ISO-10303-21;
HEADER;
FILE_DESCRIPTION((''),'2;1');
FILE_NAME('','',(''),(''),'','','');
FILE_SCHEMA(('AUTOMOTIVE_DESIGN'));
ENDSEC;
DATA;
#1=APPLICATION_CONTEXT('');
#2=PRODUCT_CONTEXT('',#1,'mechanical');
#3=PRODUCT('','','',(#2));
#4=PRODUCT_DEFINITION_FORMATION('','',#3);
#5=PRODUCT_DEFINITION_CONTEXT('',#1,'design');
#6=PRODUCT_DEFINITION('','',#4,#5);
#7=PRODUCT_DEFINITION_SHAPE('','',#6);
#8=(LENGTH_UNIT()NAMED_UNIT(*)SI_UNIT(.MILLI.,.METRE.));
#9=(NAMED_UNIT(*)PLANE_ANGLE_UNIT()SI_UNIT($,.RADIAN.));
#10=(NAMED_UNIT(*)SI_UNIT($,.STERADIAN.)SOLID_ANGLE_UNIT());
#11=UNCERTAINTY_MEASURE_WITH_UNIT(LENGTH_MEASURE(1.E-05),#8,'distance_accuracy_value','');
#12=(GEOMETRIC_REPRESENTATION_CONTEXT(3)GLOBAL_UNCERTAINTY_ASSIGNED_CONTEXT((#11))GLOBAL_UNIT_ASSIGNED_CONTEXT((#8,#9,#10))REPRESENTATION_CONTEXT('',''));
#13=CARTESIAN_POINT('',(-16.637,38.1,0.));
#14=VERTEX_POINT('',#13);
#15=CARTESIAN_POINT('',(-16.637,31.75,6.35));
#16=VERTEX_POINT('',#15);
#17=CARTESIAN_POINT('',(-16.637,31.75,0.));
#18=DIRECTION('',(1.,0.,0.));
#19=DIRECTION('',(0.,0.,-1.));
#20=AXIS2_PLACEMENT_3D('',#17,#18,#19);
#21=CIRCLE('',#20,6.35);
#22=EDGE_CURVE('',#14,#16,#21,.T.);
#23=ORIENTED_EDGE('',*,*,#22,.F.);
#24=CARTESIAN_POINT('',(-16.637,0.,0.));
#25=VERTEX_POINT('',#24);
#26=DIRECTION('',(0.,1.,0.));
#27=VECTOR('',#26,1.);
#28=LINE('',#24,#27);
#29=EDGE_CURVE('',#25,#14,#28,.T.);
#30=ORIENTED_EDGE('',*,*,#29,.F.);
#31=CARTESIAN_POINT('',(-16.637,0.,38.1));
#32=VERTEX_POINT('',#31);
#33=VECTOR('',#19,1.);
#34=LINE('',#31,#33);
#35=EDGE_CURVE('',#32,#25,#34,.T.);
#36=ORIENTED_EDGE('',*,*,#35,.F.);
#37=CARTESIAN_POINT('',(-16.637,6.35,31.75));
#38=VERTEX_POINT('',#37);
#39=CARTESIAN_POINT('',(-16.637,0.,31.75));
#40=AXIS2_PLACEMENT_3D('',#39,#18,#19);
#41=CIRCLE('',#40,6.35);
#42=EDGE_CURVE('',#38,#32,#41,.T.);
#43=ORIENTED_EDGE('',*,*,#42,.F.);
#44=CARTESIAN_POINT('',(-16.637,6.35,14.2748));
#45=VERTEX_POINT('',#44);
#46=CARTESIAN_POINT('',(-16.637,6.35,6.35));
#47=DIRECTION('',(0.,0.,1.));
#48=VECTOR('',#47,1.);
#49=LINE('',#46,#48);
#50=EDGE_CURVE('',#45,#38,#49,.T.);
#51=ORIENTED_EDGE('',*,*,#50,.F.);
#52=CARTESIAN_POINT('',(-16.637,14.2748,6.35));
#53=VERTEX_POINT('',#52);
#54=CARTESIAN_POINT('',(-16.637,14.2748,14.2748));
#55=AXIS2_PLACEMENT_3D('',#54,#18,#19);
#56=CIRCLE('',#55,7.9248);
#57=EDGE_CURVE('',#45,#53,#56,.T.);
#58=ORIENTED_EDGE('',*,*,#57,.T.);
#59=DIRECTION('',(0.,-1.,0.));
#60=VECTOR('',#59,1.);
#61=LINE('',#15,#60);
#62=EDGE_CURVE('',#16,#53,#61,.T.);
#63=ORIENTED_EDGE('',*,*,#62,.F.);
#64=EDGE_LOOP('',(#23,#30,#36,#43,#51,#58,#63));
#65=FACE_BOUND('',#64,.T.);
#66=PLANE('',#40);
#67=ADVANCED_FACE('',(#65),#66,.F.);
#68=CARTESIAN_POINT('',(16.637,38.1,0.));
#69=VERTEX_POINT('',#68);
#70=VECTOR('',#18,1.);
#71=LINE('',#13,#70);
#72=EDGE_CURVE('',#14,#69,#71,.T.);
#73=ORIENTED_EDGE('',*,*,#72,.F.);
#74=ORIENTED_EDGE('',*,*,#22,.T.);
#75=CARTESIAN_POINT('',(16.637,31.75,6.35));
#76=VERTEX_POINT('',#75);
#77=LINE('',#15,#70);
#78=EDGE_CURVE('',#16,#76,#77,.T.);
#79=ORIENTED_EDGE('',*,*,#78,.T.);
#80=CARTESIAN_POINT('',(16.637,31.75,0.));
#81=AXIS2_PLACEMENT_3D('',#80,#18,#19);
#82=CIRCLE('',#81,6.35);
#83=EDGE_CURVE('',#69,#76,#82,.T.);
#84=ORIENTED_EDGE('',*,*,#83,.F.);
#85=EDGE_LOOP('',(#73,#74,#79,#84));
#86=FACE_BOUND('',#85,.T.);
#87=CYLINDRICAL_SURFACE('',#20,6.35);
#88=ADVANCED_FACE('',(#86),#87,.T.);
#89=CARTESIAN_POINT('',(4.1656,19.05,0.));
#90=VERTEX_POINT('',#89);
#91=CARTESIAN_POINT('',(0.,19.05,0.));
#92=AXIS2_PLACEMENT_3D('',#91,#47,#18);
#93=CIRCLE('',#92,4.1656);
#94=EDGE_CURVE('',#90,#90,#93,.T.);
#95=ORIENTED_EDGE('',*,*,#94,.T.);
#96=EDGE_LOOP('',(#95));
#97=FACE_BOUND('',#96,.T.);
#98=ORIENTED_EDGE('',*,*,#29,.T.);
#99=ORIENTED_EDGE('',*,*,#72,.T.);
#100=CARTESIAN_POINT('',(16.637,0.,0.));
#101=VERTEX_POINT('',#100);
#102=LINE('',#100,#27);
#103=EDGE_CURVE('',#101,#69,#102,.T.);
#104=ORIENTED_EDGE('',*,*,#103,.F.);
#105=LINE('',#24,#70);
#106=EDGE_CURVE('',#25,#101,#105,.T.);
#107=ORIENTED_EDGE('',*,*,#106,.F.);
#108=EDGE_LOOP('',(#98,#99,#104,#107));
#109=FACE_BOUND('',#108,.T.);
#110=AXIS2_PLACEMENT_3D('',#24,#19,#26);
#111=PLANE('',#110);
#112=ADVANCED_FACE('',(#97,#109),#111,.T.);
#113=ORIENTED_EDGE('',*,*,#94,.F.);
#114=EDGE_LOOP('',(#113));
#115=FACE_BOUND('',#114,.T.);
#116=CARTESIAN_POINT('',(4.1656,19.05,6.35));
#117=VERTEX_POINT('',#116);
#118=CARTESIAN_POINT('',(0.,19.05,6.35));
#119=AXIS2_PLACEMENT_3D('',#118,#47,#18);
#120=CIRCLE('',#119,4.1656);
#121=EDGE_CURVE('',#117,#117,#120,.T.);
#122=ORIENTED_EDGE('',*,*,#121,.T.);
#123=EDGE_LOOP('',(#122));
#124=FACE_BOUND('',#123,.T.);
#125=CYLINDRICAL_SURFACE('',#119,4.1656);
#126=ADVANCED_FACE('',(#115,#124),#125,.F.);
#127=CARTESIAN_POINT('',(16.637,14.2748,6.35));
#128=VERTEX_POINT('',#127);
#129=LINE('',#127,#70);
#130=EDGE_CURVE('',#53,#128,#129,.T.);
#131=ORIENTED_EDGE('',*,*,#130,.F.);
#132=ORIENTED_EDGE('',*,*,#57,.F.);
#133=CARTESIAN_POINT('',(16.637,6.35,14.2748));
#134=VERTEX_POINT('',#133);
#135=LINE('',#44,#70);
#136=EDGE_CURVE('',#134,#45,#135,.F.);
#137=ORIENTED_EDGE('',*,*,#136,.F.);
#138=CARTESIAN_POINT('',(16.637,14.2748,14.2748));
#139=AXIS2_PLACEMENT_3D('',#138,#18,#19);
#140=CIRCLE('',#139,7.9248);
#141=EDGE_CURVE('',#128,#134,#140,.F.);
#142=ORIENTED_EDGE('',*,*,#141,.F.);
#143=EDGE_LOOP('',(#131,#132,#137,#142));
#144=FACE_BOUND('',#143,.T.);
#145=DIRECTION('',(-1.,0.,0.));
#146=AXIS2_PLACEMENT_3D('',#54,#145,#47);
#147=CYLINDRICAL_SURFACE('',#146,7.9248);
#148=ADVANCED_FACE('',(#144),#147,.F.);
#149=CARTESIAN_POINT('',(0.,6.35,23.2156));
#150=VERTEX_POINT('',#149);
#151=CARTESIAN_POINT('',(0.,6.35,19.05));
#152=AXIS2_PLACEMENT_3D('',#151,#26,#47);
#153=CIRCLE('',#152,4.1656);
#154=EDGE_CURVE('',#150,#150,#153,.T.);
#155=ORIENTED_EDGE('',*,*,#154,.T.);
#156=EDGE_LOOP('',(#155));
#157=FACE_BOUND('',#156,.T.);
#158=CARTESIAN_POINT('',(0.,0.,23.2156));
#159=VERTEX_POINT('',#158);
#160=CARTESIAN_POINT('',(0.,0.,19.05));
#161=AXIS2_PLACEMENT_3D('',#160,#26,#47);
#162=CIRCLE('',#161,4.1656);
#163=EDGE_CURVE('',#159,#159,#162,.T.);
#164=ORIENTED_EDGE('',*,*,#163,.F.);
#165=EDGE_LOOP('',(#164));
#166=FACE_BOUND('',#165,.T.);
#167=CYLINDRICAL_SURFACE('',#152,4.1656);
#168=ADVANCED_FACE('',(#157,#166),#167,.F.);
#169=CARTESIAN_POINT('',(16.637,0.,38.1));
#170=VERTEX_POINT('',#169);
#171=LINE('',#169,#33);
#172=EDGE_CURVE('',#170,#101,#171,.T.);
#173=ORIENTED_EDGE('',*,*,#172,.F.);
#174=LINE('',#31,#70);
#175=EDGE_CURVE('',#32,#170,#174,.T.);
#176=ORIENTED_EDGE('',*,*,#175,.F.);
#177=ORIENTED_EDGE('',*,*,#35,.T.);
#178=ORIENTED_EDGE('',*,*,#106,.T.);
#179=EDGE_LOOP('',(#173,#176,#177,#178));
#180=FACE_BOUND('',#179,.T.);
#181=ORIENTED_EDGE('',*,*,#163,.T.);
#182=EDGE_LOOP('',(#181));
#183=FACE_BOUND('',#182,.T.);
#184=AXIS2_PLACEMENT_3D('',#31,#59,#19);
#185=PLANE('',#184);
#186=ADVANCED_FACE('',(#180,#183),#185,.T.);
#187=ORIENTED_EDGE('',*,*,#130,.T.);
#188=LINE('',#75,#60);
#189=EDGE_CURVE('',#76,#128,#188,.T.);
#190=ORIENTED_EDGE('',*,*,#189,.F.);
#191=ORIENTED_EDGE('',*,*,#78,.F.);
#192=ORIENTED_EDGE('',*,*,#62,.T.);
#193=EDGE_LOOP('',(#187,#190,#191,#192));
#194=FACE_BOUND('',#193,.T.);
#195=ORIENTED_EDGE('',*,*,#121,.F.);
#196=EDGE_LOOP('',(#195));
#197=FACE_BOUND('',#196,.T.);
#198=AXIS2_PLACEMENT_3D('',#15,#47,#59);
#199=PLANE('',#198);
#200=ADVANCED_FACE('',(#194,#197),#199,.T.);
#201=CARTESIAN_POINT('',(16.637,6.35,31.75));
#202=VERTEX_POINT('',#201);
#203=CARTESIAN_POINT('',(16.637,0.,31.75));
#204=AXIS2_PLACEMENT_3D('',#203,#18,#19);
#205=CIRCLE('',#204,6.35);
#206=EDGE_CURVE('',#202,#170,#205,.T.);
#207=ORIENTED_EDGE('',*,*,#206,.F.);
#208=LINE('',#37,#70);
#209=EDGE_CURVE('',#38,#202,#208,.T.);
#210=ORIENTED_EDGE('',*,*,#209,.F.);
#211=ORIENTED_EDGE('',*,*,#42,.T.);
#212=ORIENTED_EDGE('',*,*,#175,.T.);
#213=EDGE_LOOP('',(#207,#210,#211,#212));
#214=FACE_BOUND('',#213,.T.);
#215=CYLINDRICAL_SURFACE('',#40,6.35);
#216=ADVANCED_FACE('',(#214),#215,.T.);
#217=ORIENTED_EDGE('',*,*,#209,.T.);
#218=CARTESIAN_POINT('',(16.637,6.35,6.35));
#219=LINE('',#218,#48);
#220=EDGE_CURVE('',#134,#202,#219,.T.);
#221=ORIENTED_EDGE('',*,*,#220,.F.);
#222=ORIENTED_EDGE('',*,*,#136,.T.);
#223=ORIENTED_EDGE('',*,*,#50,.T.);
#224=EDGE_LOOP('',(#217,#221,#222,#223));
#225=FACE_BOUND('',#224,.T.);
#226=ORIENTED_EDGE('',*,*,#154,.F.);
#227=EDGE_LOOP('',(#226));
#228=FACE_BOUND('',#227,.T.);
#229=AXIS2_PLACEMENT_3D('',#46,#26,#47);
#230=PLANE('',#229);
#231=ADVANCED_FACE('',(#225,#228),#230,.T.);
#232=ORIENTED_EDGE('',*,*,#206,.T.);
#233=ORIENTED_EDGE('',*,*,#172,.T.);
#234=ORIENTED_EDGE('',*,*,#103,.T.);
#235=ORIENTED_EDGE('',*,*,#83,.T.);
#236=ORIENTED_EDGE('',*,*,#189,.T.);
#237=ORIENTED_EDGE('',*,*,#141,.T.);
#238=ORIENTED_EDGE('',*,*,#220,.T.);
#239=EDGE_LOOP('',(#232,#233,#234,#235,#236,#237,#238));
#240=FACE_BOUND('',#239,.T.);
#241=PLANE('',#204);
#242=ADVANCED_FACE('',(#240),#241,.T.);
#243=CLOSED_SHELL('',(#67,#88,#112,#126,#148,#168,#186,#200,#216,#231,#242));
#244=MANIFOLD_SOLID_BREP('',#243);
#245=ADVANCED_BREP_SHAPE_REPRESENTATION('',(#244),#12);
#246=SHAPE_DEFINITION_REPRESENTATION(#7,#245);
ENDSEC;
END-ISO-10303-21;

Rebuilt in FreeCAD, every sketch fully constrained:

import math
import FreeCAD as App
import Part
import Sketcher
Q = App.Units.Quantity


def edges_at(feature, points):
    """Names of the edges that pass closest to the given points."""
    edges = feature.Shape.Edges
    near = lambda p: min(range(len(edges)), key=lambda i: edges[i].distToShape(Part.Vertex(*p))[0])
    return sorted({f"Edge{near(p) + 1}" for p in points})

doc = App.newDocument("Part")
body = doc.addObject("PartDesign::Body", "Body")

sketch1 = body.newObject("Sketcher::SketchObject", "Sketch")
sketch1.AttachmentSupport = (doc.getObject("YZ_Plane"), [""])
sketch1.MapMode = "FlatFace"
sketch1.AttachmentOffset = App.Placement(App.Vector(0, 0, 0.655 * 25.4), App.Rotation())
sketch1.addGeometry([
    Part.LineSegment(App.Vector(0, 38.1, 0), App.Vector(0, 0, 0)),
    Part.LineSegment(App.Vector(0, 0, 0), App.Vector(38.1, 0, 0)),
    Part.ArcOfCircle(Part.Circle(App.Vector(31.75, 0, 0), App.Vector(0, 0, 1), 6.35), math.radians(0), math.radians(90)),
    Part.LineSegment(App.Vector(31.75, 6.35, 0), App.Vector(6.35, 6.35, 0)),
    Part.LineSegment(App.Vector(6.35, 6.35, 0), App.Vector(6.35, 31.75, 0)),
    Part.ArcOfCircle(Part.Circle(App.Vector(0, 31.75, 0), App.Vector(0, 0, 1), 6.35), math.radians(0), math.radians(90)),
], False)
sketch1.addConstraint([
    Sketcher.Constraint("Coincident", 0, 2, 1, 1),
    Sketcher.Constraint("Coincident", 1, 2, 2, 1),
    Sketcher.Constraint("Tangent", 2, 2, 3, 1),
    Sketcher.Constraint("Coincident", 3, 2, 4, 1),
    Sketcher.Constraint("Tangent", 4, 2, 5, 1),
    Sketcher.Constraint("Coincident", 5, 2, 0, 1),
    Sketcher.Constraint("Vertical", 0),
    Sketcher.Constraint("Horizontal", 1),
    Sketcher.Constraint("Horizontal", 3),
    Sketcher.Constraint("Vertical", 4),
    Sketcher.Constraint("Coincident", 0, 2, -1, 1),
    Sketcher.Constraint("Equal", 2, 5),
    Sketcher.Constraint("PointOnObject", 2, 3, -1),
    Sketcher.Constraint("PointOnObject", 5, 3, -2),
    Sketcher.Constraint("Equal", 1, 0),
    Sketcher.Constraint("DistanceX", 3, 2, 3, 1, Q("1 in")),
    Sketcher.Constraint("Radius", 2, Q("0.25 in")),
])
pad1 = body.newObject("PartDesign::Pad", "Pad")
pad1.Profile = sketch1
pad1.Length = Q("1.31 in")
pad1.Reversed = True

sketch2 = body.newObject("Sketcher::SketchObject", "Sketch001")
sketch2.AttachmentSupport = (doc.getObject("XY_Plane"), [""])
sketch2.MapMode = "FlatFace"
sketch2.AttachmentOffset = App.Placement(App.Vector(0, 0, 0.25 * 25.4), App.Rotation())
sketch2.addGeometry(Part.Circle(App.Vector(0, 19.05, 0), App.Vector(0, 0, 1), 4.1656), False)
sketch2.addConstraint([
    Sketcher.Constraint("PointOnObject", 0, 3, -2),
    Sketcher.Constraint("Diameter", 0, Q("0.328 in")),
    Sketcher.Constraint("DistanceY", -1, 1, 0, 3, Q("0.75 in")),
])
doc.recompute()
hole = body.newObject("PartDesign::Hole", "Hole")
hole.Profile = sketch2
hole.ThreadType = "None"
hole.Diameter = Q("0.328 in")
hole.DepthType = "Dimension"
hole.Depth = Q("0.25 in")
hole.DrillPoint = "Flat"

sketch3 = body.newObject("Sketcher::SketchObject", "Sketch002")
sketch3.AttachmentSupport = (doc.getObject("XZ_Plane"), [""])
sketch3.MapMode = "FlatFace"
sketch3.AttachmentOffset = App.Placement(App.Vector(0, 0, -0.25 * 25.4), App.Rotation())
sketch3.addGeometry(Part.Circle(App.Vector(0, 19.05, 0), App.Vector(0, 0, 1), 4.1656), False)
sketch3.addConstraint([
    Sketcher.Constraint("PointOnObject", 0, 3, -2),
    Sketcher.Constraint("Diameter", 0, Q("0.328 in")),
    Sketcher.Constraint("DistanceY", -1, 1, 0, 3, Q("0.75 in")),
])
doc.recompute()
hole2 = body.newObject("PartDesign::Hole", "Hole001")
hole2.Profile = sketch3
hole2.ThreadType = "None"
hole2.Diameter = Q("0.328 in")
hole2.DepthType = "Dimension"
hole2.Depth = Q("0.25 in")
hole2.DrillPoint = "Flat"
hole2.Reversed = True
doc.recompute()

fillet = body.newObject("PartDesign::Fillet", "Fillet")
fillet.Base = (hole2, edges_at(hole2, [(0, 6.35, 6.35)]))
fillet.Radius = Q("0.312 in")

doc.recompute()
